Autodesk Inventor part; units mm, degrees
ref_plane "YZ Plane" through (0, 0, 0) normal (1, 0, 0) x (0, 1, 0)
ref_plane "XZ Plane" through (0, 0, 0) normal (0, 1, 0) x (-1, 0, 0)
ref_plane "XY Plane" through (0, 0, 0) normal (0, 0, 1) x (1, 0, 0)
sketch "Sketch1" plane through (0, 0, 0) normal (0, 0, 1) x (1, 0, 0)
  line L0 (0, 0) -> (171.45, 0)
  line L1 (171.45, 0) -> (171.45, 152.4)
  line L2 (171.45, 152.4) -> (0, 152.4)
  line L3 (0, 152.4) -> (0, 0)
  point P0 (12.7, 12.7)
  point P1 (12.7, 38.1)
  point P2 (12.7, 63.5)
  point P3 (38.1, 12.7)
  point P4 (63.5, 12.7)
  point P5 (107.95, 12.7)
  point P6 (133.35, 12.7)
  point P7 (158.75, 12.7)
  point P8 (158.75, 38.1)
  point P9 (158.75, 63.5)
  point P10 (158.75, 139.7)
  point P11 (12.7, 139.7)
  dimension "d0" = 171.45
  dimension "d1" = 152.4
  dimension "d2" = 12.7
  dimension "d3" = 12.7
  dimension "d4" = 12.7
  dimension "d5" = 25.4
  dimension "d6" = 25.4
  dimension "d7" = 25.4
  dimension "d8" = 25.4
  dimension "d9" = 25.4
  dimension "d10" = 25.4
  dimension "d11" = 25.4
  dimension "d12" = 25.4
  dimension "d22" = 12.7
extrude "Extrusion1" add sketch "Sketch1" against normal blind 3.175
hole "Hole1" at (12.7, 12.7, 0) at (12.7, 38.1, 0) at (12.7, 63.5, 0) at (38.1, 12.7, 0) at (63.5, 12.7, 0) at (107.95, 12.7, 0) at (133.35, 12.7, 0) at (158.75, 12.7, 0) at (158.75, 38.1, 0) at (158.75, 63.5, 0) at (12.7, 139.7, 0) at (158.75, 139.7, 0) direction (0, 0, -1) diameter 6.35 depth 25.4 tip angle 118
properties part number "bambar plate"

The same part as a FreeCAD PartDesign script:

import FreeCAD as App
import Part
import Sketcher

V = App.Vector
Q = App.Units.Quantity


def add_polygon(sketch, points):
    """Adds a closed chain of lines whose ends are joined by coincident constraints."""
    first, n = sketch.GeometryCount, len(points)
    for a, b in zip(points, points[1:] + points[:1]):
        sketch.addGeometry(Part.LineSegment(App.Vector(*a, 0), App.Vector(*b, 0)), False)
    for i in range(n):
        sketch.addConstraint(Sketcher.Constraint("Coincident", first + i, 2, first + (i + 1) % n, 1))

doc = App.newDocument("Part")
body = doc.addObject("PartDesign::Body", "Body")

# Sketch on XY plane
sketch1 = doc.addObject("Sketcher::SketchObject", "Sketch")
body.addObject(sketch1)
sketch1.AttachmentSupport = (doc.XY_Plane, [""])
sketch1.MapMode = "FlatFace"
add_polygon(sketch1, [(0, 152.4), (0, 0), (171.45, 0), (171.45, 152.4)])  # lines 0-3
sketch1.addConstraint([
    Sketcher.Constraint("Vertical", 0),
    Sketcher.Constraint("Horizontal", 1),
    Sketcher.Constraint("Vertical", 2),
    Sketcher.Constraint("Horizontal", 3),
    Sketcher.Constraint("Coincident", 0, 2, -1, 1),
    Sketcher.Constraint("DistanceY", 0, 2, 0, 1, Q("6 in")),
    Sketcher.Constraint("DistanceX", 1, 1, 1, 2, Q("6.75 in")),
])
pad1 = doc.addObject("PartDesign::Pad", "Pad")
body.addObject(pad1)
pad1.Profile = sketch1
pad1.Length = Q("0.125 in")
pad1.Reversed = True

# Sketch on XY plane
sketch2 = doc.addObject("Sketcher::SketchObject", "Sketch001")
body.addObject(sketch2)
sketch2.AttachmentSupport = (doc.XY_Plane, [""])
sketch2.MapMode = "FlatFace"
sketch2.addGeometry([
    Part.Circle(V(12.7, 12.7, 0), V(0, 0, 1), 3.175),  # 0
    Part.Circle(V(12.7, 38.1, 0), V(0, 0, 1), 3.175),  # 1
    Part.Circle(V(12.7, 63.5, 0), V(0, 0, 1), 3.175),  # 2
    Part.Circle(V(38.1, 12.7, 0), V(0, 0, 1), 3.175),  # 3
    Part.Circle(V(63.5, 12.7, 0), V(0, 0, 1), 3.175),  # 4
    Part.Circle(V(107.95, 12.7, 0), V(0, 0, 1), 3.175),  # 5
    Part.Circle(V(133.35, 12.7, 0), V(0, 0, 1), 3.175),  # 6
    Part.Circle(V(158.75, 12.7, 0), V(0, 0, 1), 3.175),  # 7
    Part.Circle(V(158.75, 38.1, 0), V(0, 0, 1), 3.175),  # 8
    Part.Circle(V(158.75, 63.5, 0), V(0, 0, 1), 3.175),  # 9
    Part.Circle(V(12.7, 139.7, 0), V(0, 0, 1), 3.175),  # 10
    Part.Circle(V(158.75, 139.7, 0), V(0, 0, 1), 3.175),  # 11
], False)
sketch2.addConstraint([
    Sketcher.Constraint("Equal", 0, 1),
    Sketcher.Constraint("Equal", 1, 2),
    Sketcher.Constraint("Equal", 2, 3),
    Sketcher.Constraint("Equal", 3, 4),
    Sketcher.Constraint("Equal", 4, 5),
    Sketcher.Constraint("Equal", 5, 6),
    Sketcher.Constraint("Equal", 6, 7),
    Sketcher.Constraint("Equal", 7, 8),
    Sketcher.Constraint("Equal", 8, 9),
    Sketcher.Constraint("Equal", 9, 10),
    Sketcher.Constraint("Equal", 10, 11),
    Sketcher.Constraint("Horizontal", 0, 3, 3, 3),
    Sketcher.Constraint("Horizontal", 3, 3, 4, 3),
    Sketcher.Constraint("Horizontal", 4, 3, 5, 3),
    Sketcher.Constraint("Horizontal", 5, 3, 6, 3),
    Sketcher.Constraint("Horizontal", 6, 3, 7, 3),
    Sketcher.Constraint("Horizontal", 1, 3, 8, 3),
    Sketcher.Constraint("Horizontal", 2, 3, 9, 3),
    Sketcher.Constraint("Horizontal", 10, 3, 11, 3),
    Sketcher.Constraint("Vertical", 0, 3, 1, 3),
    Sketcher.Constraint("Vertical", 1, 3, 2, 3),
    Sketcher.Constraint("Vertical", 7, 3, 8, 3),
    Sketcher.Constraint("Vertical", 8, 3, 9, 3),
    Sketcher.Constraint("Vertical", 2, 3, 10, 3),
    Sketcher.Constraint("Vertical", 9, 3, 11, 3),
    Sketcher.Constraint("Diameter", 0, Q("0.25 in")),
    Sketcher.Constraint("DistanceY", 0, 3, 1, 3, Q("1 in")),
    Sketcher.Constraint("DistanceY", 1, 3, 2, 3, Q("1 in")),
    Sketcher.Constraint("DistanceX", 0, 3, 3, 3, Q("1 in")),
    Sketcher.Constraint("DistanceX", 3, 3, 4, 3, Q("1 in")),
    Sketcher.Constraint("DistanceX", 5, 3, 6, 3, Q("1 in")),
    Sketcher.Constraint("DistanceX", 6, 3, 7, 3, Q("1 in")),
    Sketcher.Constraint("DistanceY", 2, 3, 10, 3, Q("3 in")),
    Sketcher.Constraint("DistanceX", -1, 1, 0, 3, Q("0.5 in")),
    Sketcher.Constraint("DistanceY", -1, 1, 0, 3, Q("0.5 in")),
    Sketcher.Constraint("DistanceX", -1, 1, 5, 3, Q("4.25 in")),
])
doc.recompute()
hole = doc.addObject("PartDesign::Hole", "Hole")
body.addObject(hole)
hole.Profile = sketch2
hole.ThreadType = "None"
hole.Diameter = Q("0.25 in")
hole.DepthType = "Dimension"
hole.Depth = Q("1 in")
hole.DrillPoint = "Angled"
hole.DrillPointAngle = 118

doc.recompute()
